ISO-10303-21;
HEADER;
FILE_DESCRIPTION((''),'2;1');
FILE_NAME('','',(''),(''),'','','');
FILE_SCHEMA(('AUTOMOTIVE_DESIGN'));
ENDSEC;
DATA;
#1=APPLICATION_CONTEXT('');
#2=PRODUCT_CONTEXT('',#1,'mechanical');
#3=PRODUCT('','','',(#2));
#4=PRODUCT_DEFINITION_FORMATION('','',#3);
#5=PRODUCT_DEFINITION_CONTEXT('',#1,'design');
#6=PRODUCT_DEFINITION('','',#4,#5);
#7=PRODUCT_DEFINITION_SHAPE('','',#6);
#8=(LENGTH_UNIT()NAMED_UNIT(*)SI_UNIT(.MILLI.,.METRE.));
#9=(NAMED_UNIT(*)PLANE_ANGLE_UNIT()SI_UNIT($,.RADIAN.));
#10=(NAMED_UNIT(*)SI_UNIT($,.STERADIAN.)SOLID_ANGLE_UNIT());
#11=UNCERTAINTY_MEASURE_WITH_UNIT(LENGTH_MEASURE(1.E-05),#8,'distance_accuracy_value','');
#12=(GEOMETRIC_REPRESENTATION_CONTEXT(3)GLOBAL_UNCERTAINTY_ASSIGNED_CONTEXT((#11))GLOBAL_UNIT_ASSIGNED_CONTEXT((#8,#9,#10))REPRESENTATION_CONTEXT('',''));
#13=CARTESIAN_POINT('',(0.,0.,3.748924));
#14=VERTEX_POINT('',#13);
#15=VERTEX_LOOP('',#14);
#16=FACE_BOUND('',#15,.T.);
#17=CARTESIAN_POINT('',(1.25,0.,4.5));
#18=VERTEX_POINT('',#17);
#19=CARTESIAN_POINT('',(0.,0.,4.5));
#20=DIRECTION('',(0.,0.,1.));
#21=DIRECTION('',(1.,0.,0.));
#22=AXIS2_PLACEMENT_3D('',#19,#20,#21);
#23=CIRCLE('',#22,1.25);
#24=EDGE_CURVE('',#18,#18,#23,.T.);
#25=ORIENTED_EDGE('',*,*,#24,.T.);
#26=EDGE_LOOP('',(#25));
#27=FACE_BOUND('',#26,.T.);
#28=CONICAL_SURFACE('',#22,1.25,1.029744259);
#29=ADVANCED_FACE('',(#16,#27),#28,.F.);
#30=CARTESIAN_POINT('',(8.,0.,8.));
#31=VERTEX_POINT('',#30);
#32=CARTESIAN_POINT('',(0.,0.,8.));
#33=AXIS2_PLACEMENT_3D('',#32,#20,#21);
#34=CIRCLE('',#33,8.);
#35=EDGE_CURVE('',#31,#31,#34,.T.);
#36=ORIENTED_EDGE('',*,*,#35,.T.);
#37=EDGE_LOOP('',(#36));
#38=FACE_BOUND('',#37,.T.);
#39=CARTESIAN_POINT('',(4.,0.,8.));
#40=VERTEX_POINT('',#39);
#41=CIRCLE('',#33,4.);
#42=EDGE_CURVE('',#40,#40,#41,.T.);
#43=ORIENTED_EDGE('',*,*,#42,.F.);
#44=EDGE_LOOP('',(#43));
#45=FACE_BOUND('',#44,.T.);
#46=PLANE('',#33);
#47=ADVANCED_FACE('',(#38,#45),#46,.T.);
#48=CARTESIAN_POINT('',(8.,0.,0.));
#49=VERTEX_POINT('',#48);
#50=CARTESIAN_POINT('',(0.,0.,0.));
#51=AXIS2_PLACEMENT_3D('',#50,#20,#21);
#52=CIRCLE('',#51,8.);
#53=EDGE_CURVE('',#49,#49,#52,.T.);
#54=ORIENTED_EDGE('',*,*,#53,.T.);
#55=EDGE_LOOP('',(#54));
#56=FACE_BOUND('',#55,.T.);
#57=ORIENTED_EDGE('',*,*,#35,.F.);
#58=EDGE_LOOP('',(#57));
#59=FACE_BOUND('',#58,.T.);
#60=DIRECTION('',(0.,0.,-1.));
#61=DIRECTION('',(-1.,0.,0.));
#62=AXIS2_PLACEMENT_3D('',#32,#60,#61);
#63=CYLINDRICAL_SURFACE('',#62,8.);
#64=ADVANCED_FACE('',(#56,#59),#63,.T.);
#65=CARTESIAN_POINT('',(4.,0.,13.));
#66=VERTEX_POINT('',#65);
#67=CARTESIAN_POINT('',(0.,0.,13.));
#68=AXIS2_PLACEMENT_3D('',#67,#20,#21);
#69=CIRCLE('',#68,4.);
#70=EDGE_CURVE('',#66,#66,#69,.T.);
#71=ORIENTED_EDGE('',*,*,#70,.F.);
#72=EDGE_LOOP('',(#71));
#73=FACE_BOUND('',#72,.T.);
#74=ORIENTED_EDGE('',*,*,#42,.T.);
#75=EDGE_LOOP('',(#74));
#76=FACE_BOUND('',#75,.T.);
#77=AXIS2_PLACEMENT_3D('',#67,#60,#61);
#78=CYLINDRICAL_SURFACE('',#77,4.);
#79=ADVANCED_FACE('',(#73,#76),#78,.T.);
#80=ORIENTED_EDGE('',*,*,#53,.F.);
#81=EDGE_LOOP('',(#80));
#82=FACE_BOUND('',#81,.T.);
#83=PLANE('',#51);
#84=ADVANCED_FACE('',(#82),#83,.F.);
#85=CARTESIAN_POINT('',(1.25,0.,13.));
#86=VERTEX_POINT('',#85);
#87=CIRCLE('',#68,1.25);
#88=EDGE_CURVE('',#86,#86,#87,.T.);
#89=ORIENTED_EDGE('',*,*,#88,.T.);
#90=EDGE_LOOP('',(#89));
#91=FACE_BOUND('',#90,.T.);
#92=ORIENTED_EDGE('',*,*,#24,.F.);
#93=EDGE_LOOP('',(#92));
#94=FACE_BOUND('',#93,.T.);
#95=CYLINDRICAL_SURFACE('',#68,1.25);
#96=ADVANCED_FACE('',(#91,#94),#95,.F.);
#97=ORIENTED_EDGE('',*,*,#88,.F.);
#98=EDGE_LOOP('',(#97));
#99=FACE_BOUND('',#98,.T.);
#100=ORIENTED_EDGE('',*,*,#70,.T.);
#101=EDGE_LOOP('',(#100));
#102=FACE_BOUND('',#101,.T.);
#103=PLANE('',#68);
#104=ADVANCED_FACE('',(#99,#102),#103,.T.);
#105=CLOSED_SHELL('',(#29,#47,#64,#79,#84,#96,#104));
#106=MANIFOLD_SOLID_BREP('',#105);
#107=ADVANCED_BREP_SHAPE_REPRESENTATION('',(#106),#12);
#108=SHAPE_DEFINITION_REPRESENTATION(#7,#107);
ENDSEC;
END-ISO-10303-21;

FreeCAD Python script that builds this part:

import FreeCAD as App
import Part
import Sketcher

doc = App.newDocument("Part")
body = doc.addObject("PartDesign::Body", "Body")

# Sketch on XY plane
sketch1 = doc.addObject("Sketcher::SketchObject", "Sketch")
body.addObject(sketch1)
sketch1.AttachmentSupport = (doc.XY_Plane, [""])
sketch1.MapMode = "FlatFace"
sketch1.addGeometry(Part.Circle(App.Vector(0, 0, 0), App.Vector(0, 0, 1), 8), False)
sketch1.addConstraint(Sketcher.Constraint("Coincident", 0, 3, -1, 1))
sketch1.addConstraint(Sketcher.Constraint("Diameter", 0, 16.0))
pad1 = doc.addObject("PartDesign::Pad", "Pad")
body.addObject(pad1)
pad1.Profile = sketch1
pad1.Length = 8

# Sketch on XY plane
sketch2 = doc.addObject("Sketcher::SketchObject", "Sketch001")
body.addObject(sketch2)
sketch2.AttachmentSupport = (doc.XY_Plane, [""])
sketch2.MapMode = "FlatFace"
sketch2.AttachmentOffset = App.Placement(App.Vector(0, 0, 8), App.Rotation())
sketch2.addGeometry(Part.Circle(App.Vector(0, 0, 0), App.Vector(0, 0, 1), 4), False)
sketch2.addConstraint(Sketcher.Constraint("Coincident", 0, 3, -1, 1))
sketch2.addConstraint(Sketcher.Constraint("Diameter", 0, 8.0))
pad2 = doc.addObject("PartDesign::Pad", "Pad001")
body.addObject(pad2)
pad2.Profile = sketch2
pad2.Length = 5

# Sketch on XY plane
sketch3 = doc.addObject("Sketcher::SketchObject", "Sketch002")
body.addObject(sketch3)
sketch3.AttachmentSupport = (doc.XY_Plane, [""])
sketch3.MapMode = "FlatFace"
sketch3.AttachmentOffset = App.Placement(App.Vector(0, 0, 13), App.Rotation())
sketch3.addGeometry(Part.Circle(App.Vector(0, 0, 0), App.Vector(0, 0, 1), 1.25), False)
sketch3.addConstraint(Sketcher.Constraint("Coincident", 0, 3, -1, 1))
sketch3.addConstraint(Sketcher.Constraint("Diameter", 0, 2.5))
doc.recompute()
hole = doc.addObject("PartDesign::Hole", "Hole")
body.addObject(hole)
hole.Profile = sketch3
hole.ThreadType = "None"
hole.Diameter = 2.5
hole.DepthType = "Dimension"
hole.Depth = 8.5
hole.DrillPoint = "Angled"
hole.DrillPointAngle = 118

doc.recompute()
